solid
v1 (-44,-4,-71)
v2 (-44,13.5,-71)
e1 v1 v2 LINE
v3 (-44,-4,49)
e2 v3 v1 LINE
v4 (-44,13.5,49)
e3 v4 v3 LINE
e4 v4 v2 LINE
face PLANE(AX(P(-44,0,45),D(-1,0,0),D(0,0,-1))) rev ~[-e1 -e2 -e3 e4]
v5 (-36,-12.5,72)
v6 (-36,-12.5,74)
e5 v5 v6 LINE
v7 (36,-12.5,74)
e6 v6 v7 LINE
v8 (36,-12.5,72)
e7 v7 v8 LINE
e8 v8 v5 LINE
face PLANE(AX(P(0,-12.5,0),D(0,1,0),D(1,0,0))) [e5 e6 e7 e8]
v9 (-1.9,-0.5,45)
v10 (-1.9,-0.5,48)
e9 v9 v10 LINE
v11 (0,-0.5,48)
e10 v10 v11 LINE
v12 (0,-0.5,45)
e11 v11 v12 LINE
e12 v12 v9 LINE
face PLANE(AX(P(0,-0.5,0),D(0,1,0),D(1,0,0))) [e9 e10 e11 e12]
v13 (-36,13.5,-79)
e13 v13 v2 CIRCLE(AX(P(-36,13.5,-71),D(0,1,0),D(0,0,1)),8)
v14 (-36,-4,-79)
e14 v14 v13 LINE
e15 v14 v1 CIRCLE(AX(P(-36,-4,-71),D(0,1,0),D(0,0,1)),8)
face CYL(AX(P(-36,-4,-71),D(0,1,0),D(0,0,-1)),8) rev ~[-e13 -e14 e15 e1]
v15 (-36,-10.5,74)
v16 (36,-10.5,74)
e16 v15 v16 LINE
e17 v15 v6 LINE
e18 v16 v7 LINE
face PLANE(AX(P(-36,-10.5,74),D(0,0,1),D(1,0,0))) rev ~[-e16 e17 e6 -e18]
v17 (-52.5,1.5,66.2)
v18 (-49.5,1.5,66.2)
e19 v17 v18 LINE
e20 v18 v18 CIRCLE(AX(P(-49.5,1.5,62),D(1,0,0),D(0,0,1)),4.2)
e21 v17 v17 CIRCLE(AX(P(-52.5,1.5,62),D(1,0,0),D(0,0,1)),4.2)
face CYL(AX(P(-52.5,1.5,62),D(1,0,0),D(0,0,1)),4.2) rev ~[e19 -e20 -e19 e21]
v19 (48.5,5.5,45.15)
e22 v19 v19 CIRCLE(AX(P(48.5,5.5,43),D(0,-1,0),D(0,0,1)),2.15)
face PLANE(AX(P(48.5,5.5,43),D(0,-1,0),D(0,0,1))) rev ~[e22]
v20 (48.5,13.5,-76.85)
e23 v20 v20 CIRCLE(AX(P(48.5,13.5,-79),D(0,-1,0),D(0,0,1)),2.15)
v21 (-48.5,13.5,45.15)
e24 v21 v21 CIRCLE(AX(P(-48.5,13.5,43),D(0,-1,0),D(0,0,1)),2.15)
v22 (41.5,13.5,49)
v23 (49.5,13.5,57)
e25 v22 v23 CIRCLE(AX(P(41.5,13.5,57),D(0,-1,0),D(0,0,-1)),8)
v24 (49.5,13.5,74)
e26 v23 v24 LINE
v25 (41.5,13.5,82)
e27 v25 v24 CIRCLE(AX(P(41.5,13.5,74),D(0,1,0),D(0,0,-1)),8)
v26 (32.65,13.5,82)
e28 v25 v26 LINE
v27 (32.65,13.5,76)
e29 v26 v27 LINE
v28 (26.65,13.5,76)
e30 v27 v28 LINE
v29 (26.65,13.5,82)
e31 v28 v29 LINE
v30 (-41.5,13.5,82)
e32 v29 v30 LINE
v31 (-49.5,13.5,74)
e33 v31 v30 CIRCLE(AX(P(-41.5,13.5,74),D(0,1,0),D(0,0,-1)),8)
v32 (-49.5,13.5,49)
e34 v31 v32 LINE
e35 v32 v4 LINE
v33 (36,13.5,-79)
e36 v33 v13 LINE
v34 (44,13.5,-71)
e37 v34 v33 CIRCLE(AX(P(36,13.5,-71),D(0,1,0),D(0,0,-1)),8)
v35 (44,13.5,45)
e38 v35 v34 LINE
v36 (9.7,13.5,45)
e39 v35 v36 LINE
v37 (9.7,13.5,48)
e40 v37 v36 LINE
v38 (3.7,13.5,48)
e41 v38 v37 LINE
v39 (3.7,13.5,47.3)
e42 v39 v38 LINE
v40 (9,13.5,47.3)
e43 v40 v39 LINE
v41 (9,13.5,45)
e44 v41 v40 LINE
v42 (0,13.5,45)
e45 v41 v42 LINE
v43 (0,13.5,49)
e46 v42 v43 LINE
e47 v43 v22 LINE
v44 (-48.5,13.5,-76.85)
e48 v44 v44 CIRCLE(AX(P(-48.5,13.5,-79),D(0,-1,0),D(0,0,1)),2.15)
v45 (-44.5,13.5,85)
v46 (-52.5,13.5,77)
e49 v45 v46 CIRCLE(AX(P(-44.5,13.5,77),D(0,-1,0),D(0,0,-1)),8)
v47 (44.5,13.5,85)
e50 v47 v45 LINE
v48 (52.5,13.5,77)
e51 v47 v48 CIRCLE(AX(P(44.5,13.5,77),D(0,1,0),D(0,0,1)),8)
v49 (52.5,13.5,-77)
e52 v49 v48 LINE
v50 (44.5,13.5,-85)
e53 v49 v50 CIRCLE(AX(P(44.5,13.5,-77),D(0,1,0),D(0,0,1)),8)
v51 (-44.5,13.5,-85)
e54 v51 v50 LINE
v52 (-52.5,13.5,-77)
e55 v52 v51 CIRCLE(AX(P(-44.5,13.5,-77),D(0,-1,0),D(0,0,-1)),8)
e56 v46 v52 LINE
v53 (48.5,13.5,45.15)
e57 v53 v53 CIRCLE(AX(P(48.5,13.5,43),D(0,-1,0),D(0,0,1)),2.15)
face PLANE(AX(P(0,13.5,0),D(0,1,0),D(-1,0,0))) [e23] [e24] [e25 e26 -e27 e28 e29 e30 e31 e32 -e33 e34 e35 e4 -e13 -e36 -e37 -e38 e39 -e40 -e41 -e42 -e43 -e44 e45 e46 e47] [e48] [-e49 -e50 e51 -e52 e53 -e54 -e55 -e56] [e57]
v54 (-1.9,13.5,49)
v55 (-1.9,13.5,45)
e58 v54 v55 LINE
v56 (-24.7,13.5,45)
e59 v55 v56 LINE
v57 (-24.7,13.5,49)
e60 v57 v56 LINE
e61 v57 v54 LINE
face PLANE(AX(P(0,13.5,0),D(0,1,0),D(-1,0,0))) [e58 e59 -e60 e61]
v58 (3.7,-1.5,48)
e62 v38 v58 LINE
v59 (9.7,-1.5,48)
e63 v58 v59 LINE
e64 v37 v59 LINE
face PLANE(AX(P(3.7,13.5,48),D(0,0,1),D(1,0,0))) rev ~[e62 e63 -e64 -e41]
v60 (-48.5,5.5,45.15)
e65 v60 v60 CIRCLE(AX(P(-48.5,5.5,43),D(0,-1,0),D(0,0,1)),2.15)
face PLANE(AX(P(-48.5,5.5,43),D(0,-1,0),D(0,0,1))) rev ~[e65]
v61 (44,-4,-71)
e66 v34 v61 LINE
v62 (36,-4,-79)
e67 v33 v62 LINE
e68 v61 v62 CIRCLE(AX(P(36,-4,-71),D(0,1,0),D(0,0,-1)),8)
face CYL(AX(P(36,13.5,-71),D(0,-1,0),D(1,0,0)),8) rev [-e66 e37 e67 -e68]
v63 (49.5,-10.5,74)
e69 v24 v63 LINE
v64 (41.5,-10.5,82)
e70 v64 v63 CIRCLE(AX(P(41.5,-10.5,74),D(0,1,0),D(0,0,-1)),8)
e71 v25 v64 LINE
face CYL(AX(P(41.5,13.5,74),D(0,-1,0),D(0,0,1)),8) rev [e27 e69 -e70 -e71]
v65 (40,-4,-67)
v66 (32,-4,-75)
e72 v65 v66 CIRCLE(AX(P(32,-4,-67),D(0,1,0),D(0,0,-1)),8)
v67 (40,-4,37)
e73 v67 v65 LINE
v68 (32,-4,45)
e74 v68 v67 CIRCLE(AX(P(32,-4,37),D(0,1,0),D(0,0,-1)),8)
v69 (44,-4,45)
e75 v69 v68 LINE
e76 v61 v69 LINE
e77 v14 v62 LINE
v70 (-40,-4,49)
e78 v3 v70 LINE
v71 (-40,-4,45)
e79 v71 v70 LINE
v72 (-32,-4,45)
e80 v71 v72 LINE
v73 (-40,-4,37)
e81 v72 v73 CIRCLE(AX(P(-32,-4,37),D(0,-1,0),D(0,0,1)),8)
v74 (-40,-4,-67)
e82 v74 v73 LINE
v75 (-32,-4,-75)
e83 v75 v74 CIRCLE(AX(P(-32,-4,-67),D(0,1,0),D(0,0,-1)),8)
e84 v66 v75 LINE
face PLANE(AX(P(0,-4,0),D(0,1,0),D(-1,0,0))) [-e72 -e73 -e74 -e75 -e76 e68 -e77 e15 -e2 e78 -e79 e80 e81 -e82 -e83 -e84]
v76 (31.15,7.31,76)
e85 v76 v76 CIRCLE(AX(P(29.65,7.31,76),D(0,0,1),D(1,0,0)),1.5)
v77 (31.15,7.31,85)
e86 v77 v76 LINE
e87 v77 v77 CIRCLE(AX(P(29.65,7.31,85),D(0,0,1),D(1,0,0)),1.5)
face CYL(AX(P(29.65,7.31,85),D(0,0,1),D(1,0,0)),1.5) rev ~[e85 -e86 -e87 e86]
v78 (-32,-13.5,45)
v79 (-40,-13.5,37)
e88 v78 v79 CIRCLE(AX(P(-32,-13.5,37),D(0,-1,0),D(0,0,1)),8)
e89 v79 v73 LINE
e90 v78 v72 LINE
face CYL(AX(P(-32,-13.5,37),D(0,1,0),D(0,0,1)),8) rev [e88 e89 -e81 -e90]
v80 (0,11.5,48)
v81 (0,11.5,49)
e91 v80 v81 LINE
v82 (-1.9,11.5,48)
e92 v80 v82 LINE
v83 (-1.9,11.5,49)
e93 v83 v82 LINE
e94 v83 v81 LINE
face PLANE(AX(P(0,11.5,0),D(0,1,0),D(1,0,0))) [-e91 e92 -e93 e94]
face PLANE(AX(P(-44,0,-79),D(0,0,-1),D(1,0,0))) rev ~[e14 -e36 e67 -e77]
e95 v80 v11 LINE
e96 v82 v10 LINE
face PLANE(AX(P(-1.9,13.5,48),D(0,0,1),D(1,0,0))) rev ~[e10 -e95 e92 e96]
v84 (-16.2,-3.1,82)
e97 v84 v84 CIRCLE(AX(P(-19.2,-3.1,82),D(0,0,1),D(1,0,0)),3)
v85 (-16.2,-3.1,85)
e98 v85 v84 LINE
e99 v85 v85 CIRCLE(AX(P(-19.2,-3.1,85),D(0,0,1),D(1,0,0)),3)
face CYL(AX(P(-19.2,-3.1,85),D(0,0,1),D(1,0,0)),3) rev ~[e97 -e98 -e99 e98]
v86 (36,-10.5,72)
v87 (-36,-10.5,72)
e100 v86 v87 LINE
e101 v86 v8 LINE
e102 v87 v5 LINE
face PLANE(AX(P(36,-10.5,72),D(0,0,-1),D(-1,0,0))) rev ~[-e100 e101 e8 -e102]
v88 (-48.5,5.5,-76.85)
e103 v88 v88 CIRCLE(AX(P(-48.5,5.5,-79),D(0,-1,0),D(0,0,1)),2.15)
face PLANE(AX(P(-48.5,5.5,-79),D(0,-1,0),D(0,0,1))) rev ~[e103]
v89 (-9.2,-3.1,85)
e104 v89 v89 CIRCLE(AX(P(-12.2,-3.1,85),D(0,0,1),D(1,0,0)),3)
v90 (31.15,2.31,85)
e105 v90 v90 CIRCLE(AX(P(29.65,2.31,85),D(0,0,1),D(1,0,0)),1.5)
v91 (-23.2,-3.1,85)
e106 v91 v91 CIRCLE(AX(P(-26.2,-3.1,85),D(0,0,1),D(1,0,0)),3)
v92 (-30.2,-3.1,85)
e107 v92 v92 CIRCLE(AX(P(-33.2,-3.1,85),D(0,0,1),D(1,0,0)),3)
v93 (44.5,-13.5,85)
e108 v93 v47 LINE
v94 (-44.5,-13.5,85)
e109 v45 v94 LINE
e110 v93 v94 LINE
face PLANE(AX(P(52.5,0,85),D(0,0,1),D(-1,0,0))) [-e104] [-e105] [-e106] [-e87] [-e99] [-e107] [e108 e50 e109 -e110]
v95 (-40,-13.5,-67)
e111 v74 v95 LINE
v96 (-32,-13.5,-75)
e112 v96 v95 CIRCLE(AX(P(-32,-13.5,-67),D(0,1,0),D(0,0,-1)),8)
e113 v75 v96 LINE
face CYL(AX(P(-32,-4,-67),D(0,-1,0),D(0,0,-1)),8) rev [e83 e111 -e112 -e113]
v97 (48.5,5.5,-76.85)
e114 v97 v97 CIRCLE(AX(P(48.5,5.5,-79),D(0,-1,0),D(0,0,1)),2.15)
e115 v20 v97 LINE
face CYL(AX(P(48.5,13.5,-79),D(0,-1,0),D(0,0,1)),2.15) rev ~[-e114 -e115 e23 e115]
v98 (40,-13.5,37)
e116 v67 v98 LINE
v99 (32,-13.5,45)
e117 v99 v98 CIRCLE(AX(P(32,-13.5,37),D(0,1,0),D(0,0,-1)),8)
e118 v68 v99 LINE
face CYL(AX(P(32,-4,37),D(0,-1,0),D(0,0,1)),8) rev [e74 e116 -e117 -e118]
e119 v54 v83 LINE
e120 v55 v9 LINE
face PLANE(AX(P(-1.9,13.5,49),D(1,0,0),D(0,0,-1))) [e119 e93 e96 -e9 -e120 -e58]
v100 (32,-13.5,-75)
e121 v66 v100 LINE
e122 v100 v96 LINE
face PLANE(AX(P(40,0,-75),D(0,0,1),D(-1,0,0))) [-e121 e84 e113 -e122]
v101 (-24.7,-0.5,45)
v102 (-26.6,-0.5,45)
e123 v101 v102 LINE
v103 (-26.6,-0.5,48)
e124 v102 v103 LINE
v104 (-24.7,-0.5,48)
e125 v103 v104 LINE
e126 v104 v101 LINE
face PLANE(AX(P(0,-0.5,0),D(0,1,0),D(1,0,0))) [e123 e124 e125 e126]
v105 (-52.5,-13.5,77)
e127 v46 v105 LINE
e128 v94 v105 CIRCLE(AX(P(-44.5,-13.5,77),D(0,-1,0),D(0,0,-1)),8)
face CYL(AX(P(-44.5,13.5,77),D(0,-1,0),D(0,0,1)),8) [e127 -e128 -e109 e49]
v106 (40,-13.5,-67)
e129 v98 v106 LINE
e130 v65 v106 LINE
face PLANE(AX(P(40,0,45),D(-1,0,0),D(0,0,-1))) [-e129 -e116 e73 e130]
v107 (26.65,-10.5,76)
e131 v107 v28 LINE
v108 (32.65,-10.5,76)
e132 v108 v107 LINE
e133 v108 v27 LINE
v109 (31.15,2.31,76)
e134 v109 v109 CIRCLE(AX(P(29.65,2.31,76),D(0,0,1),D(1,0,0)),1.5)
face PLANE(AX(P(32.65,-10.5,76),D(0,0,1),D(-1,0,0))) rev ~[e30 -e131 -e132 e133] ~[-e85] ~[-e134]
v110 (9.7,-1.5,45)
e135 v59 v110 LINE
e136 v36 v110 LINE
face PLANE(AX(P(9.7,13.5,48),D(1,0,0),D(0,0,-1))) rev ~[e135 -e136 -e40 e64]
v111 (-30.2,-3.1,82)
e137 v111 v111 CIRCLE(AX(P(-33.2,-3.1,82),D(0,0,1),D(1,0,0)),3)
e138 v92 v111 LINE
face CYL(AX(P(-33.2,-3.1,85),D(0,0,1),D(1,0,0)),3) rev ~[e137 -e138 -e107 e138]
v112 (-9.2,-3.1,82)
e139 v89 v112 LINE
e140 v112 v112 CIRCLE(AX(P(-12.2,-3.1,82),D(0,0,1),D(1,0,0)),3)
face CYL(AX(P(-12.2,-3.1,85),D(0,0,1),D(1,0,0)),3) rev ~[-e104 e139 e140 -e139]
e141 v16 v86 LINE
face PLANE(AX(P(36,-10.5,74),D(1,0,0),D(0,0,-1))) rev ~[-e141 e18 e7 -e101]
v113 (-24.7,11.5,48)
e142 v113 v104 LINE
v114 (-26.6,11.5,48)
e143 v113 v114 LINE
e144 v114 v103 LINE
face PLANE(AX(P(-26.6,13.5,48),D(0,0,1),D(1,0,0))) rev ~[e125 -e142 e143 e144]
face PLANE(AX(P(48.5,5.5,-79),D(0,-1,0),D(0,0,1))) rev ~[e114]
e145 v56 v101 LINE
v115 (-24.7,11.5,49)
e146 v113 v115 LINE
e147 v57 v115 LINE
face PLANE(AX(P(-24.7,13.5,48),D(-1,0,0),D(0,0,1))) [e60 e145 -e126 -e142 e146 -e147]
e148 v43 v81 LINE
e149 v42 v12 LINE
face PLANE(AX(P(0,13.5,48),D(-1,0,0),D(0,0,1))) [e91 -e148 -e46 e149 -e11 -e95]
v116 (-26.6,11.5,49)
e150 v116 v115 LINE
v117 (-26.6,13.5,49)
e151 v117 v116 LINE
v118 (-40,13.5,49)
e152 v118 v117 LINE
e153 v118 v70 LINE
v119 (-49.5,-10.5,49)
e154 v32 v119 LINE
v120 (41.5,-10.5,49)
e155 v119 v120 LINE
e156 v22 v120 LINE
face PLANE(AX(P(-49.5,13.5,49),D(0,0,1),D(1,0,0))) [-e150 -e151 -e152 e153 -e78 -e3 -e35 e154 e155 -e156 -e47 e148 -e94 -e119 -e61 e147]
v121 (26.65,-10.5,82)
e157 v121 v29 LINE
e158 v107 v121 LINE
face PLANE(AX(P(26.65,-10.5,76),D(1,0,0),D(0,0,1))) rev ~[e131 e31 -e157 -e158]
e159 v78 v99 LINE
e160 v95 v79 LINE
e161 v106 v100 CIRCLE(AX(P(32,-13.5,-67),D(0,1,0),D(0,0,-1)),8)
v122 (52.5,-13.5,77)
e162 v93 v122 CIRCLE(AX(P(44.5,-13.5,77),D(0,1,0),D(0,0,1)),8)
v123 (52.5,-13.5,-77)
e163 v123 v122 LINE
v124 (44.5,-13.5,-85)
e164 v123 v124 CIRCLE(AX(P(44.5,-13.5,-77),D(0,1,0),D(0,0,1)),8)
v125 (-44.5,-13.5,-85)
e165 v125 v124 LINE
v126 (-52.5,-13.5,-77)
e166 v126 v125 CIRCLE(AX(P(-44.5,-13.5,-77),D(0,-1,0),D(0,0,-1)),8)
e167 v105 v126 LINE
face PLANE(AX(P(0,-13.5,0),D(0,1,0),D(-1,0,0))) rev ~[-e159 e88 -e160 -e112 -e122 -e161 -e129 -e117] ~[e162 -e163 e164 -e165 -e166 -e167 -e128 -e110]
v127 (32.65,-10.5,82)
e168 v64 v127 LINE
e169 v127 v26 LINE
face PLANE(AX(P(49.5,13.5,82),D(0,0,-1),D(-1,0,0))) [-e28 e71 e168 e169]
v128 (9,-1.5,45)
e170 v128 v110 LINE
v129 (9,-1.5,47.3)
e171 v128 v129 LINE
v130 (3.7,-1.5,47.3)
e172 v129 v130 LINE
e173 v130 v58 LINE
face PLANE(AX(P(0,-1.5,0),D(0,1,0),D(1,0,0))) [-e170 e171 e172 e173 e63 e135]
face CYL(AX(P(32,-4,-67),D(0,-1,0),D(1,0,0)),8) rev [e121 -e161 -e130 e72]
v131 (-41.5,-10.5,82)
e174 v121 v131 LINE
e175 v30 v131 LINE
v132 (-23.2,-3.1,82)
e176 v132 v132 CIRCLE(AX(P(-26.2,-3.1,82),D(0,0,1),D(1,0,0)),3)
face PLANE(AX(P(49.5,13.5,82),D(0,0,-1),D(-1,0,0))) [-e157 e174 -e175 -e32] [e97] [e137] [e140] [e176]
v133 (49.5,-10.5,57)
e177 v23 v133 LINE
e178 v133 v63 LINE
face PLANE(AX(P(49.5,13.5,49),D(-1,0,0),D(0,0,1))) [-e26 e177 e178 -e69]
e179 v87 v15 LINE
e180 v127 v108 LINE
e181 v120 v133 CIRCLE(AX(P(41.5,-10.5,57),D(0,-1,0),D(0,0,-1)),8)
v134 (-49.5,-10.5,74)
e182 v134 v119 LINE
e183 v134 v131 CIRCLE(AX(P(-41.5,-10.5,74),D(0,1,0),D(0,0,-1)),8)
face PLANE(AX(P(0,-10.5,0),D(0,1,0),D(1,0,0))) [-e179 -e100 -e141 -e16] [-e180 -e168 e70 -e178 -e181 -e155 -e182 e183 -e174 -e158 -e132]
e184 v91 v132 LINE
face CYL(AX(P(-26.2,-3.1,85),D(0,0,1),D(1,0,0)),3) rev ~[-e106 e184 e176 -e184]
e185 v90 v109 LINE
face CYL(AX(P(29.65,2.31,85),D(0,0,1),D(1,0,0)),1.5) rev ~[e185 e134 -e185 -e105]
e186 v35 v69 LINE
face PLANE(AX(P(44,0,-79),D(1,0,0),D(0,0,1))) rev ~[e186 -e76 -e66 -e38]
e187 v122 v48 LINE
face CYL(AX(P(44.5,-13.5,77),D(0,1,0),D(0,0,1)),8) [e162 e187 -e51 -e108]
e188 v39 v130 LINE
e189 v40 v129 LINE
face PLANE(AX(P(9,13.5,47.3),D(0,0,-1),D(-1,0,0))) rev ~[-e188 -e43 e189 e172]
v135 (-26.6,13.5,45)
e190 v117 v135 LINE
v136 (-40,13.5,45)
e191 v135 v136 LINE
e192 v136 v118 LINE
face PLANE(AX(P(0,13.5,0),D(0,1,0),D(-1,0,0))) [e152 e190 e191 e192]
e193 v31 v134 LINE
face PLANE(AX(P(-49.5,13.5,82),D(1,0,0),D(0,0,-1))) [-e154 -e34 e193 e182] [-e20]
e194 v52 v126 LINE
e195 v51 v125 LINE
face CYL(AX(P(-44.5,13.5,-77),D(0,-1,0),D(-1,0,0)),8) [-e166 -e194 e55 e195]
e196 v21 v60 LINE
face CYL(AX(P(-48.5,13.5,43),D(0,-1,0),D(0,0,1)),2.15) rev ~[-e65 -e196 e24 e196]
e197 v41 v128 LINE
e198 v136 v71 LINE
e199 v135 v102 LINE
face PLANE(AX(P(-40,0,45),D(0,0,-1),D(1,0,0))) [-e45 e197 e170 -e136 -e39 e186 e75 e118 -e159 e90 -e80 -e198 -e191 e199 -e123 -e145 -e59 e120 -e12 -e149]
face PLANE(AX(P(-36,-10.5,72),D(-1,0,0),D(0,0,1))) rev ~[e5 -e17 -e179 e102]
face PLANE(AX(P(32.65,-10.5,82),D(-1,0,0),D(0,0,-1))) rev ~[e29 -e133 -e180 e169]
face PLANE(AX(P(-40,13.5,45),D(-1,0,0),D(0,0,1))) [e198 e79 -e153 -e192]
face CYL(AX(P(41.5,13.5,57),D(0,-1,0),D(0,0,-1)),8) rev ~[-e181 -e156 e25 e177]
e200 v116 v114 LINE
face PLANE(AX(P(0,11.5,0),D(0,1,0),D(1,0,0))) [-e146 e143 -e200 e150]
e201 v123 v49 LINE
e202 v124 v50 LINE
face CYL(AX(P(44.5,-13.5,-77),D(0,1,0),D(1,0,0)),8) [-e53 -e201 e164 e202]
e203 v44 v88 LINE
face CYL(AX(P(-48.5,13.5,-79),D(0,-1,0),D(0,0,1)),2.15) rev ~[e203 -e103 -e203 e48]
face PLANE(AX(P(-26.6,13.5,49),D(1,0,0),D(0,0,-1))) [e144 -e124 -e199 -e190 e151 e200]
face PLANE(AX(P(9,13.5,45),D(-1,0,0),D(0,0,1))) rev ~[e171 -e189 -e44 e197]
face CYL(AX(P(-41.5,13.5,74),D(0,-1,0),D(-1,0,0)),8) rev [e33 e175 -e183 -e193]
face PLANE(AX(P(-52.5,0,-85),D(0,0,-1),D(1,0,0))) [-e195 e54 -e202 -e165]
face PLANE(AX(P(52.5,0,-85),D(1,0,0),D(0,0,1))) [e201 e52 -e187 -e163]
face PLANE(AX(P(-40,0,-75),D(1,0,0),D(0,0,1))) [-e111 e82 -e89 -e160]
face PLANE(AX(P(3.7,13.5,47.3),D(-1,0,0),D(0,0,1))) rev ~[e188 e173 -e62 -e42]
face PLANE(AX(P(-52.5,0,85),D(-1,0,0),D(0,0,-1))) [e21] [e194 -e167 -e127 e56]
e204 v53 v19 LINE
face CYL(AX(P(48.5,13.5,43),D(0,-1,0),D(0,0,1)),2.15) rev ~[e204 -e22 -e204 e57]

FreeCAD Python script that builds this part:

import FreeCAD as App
import Part
import Sketcher


def edges_at(feature, points):
    """Names of the edges that pass closest to the given points."""
    edges = feature.Shape.Edges
    near = lambda p: min(range(len(edges)), key=lambda i: edges[i].distToShape(Part.Vertex(*p))[0])
    return sorted({f"Edge{near(p) + 1}" for p in points})

doc = App.newDocument("Part")
params = doc.addObject("Spreadsheet::Sheet", "Params")
for row, (alias, value) in enumerate([
    ("sketch1_width", "105 mm"),
    ("sketch1_width2", "80 mm"),
    ("sketch1_height", "170 mm"),
    ("sketch1_height2", "120 mm"),
    ("pad1_length", "27 mm"),
    ("sketch2_width", "88 mm"),
    ("sketch2_height", "124 mm"),
    ("pocket1_length", "15 mm"),
    ("pocket1_length2", "4 mm"),
    ("sketch3_width", "99 mm"),
    ("sketch3_height", "33 mm"),
    ("pocket2_length", "24 mm"),
    ("sketch4_width", "4 mm"),
    ("pocket3_length", "17.5 mm"),
    ("sketch5_height", "3 mm"),
    ("sketch5_width", "1.9 mm"),
    ("pocket4_length", "14 mm"),
    ("sketch6_width", "6 mm"),
    ("sketch6_height", "3 mm"),
    ("sketch6_width2", "0.7 mm"),
    ("pocket5_length", "15 mm"),
    ("fillet_radius", "8 mm"),
    ("sketch7_width", "72 mm"),
    ("sketch7_height", "2 mm"),
    ("pocket6_length", "2 mm"),
    ("sketch8_diameter", "8.4 mm"),
    ("hole_diameter", "8.4 mm"),
    ("hole_depth", "8 mm"),
    ("fillet2_radius", "8 mm"),
    ("sketch9_diameter", "4.3 mm"),
    ("hole2_diameter", "4.3 mm"),
    ("hole2_depth", "8 mm"),
    ("sketch10_diameter", "6 mm"),
    ("pocket7_length", "10 mm"),
    ("sketch11_width", "6 mm"),
    ("pad2_length", "24 mm"),
    ("sketch12_diameter", "3 mm"),
    ("pocket8_length", "10 mm"),
    ("sketch13_height", "1 mm"),
    ("sketch13_width", "1.9 mm"),
    ("pocket9_length", "2 mm"),
], start=1):
    params.set(f"A{row}", alias)
    params.set(f"B{row}", "=" + value)
    params.setAlias(f"B{row}", alias)

body = doc.addObject("PartDesign::Body", "Body")

# Sketch on XZ plane
sketch1 = doc.addObject("Sketcher::SketchObject", "Sketch")
body.addObject(sketch1)
sketch1.AttachmentSupport = (doc.XZ_Plane, [""])
sketch1.MapMode = "FlatFace"
sketch1.addGeometry(Part.LineSegment(App.Vector(-52, 85, 0), App.Vector(52, 85, 0)), False)
sketch1.addGeometry(Part.LineSegment(App.Vector(52, 85, 0), App.Vector(52, -85, 0)), False)
sketch1.addGeometry(Part.LineSegment(App.Vector(52, -85, 0), App.Vector(-52, -85, 0)), False)
sketch1.addGeometry(Part.LineSegment(App.Vector(-52, -85, 0), App.Vector(-52, 85, 0)), False)
sketch1.addGeometry(Part.LineSegment(App.Vector(40, 45, 0), App.Vector(-40, 45, 0)), False)
sketch1.addGeometry(Part.LineSegment(App.Vector(-40, 45, 0), App.Vector(-40, -75, 0)), False)
sketch1.addGeometry(Part.LineSegment(App.Vector(-40, -75, 0), App.Vector(40, -75, 0)), False)
sketch1.addGeometry(Part.LineSegment(App.Vector(40, -75, 0), App.Vector(40, 45, 0)), False)
sketch1.addConstraint(Sketcher.Constraint("Coincident", 0, 2, 1, 1))
sketch1.addConstraint(Sketcher.Constraint("Coincident", 1, 2, 2, 1))
sketch1.addConstraint(Sketcher.Constraint("Coincident", 2, 2, 3, 1))
sketch1.addConstraint(Sketcher.Constraint("Coincident", 3, 2, 0, 1))
sketch1.addConstraint(Sketcher.Constraint("Coincident", 4, 2, 5, 1))
sketch1.addConstraint(Sketcher.Constraint("Coincident", 5, 2, 6, 1))
sketch1.addConstraint(Sketcher.Constraint("Coincident", 6, 2, 7, 1))
sketch1.addConstraint(Sketcher.Constraint("Coincident", 7, 2, 4, 1))
sketch1.addConstraint(Sketcher.Constraint("Horizontal", 0))
sketch1.addConstraint(Sketcher.Constraint("Vertical", 1))
sketch1.addConstraint(Sketcher.Constraint("Horizontal", 2))
sketch1.addConstraint(Sketcher.Constraint("Vertical", 3))
sketch1.addConstraint(Sketcher.Constraint("Horizontal", 4))
sketch1.addConstraint(Sketcher.Constraint("Vertical", 5))
sketch1.addConstraint(Sketcher.Constraint("Horizontal", 6))
sketch1.addConstraint(Sketcher.Constraint("Vertical", 7))
sketch1.addConstraint(Sketcher.Constraint("Symmetric", 0, 2, 2, 2, -1, 1))
sketch1.addConstraint(Sketcher.Constraint("DistanceX", 0, 1, 0, 2, 105.0))
sketch1.addConstraint(Sketcher.Constraint("DistanceX", 4, 2, 4, 1, 80.0))
sketch1.addConstraint(Sketcher.Constraint("DistanceY", 1, 2, 1, 1, 170.0))
sketch1.addConstraint(Sketcher.Constraint("DistanceY", 5, 2, 5, 1, 120.0))
sketch1.addConstraint(Sketcher.Constraint("DistanceY", 2, 2, 5, 2, 10.0))
sketch1.addConstraint(Sketcher.Constraint("DistanceX", 4, 2, -1, 1, 40.0))
sketch1.setExpression("Constraints[17]", "Params.sketch1_width")
sketch1.setExpression("Constraints[18]", "Params.sketch1_width2")
sketch1.setExpression("Constraints[19]", "Params.sketch1_height")
sketch1.setExpression("Constraints[20]", "Params.sketch1_height2")
pad1 = doc.addObject("PartDesign::Pad", "Pad")
body.addObject(pad1)
pad1.Profile = sketch1
pad1.setExpression("Length", "Params.pad1_length")
pad1.Midplane = True

# Sketch on XZ plane
sketch2 = doc.addObject("Sketcher::SketchObject", "Sketch001")
body.addObject(sketch2)
sketch2.AttachmentSupport = (doc.XZ_Plane, [""])
sketch2.MapMode = "FlatFace"
sketch2.addGeometry(Part.LineSegment(App.Vector(44, -79, 0), App.Vector(-44, -79, 0)), False)
sketch2.addGeometry(Part.LineSegment(App.Vector(-44, -79, 0), App.Vector(-44, 45, 0)), False)
sketch2.addGeometry(Part.LineSegment(App.Vector(-44, 45, 0), App.Vector(44, 45, 0)), False)
sketch2.addGeometry(Part.LineSegment(App.Vector(44, 45, 0), App.Vector(44, -79, 0)), False)
sketch2.addConstraint(Sketcher.Constraint("Coincident", 0, 2, 1, 1))
sketch2.addConstraint(Sketcher.Constraint("Coincident", 1, 2, 2, 1))
sketch2.addConstraint(Sketcher.Constraint("Coincident", 2, 2, 3, 1))
sketch2.addConstraint(Sketcher.Constraint("Coincident", 3, 2, 0, 1))
sketch2.addConstraint(Sketcher.Constraint("Horizontal", 0))
sketch2.addConstraint(Sketcher.Constraint("Vertical", 1))
sketch2.addConstraint(Sketcher.Constraint("Horizontal", 2))
sketch2.addConstraint(Sketcher.Constraint("Vertical", 3))
sketch2.addConstraint(Sketcher.Constraint("DistanceX", 0, 2, 0, 1, 88.0))
sketch2.addConstraint(Sketcher.Constraint("DistanceY", 1, 1, 1, 2, 124.0))
sketch2.addConstraint(Sketcher.Constraint("DistanceX", 0, 2, -1, 1, 44.0))
sketch2.addConstraint(Sketcher.Constraint("DistanceY", 0, 2, -1, 1, 79.0))
sketch2.setExpression("Constraints[8]", "Params.sketch2_width")
sketch2.setExpression("Constraints[9]", "Params.sketch2_height")
pocket1 = doc.addObject("PartDesign::Pocket", "Pocket")
body.addObject(pocket1)
pocket1.Profile = sketch2
pocket1.Type = "TwoLengths"
pocket1.setExpression("Length", "Params.pocket1_length")
pocket1.setExpression("Length2", "Params.pocket1_length2")

# Sketch on XZ plane
sketch3 = doc.addObject("Sketcher::SketchObject", "Sketch002")
body.addObject(sketch3)
sketch3.AttachmentSupport = (doc.XZ_Plane, [""])
sketch3.MapMode = "FlatFace"
sketch3.AttachmentOffset = App.Placement(App.Vector(0, 0, -13.5), App.Rotation())
sketch3.addGeometry(Part.LineSegment(App.Vector(50, 49, 0), App.Vector(-50, 49, 0)), False)
sketch3.addGeometry(Part.LineSegment(App.Vector(-50, 49, 0), App.Vector(-50, 82, 0)), False)
sketch3.addGeometry(Part.LineSegment(App.Vector(-50, 82, 0), App.Vector(50, 82, 0)), False)
sketch3.addGeometry(Part.LineSegment(App.Vector(50, 82, 0), App.Vector(50, 49, 0)), False)
sketch3.addConstraint(Sketcher.Constraint("Coincident", 0, 2, 1, 1))
sketch3.addConstraint(Sketcher.Constraint("Coincident", 1, 2, 2, 1))
sketch3.addConstraint(Sketcher.Constraint("Coincident", 2, 2, 3, 1))
sketch3.addConstraint(Sketcher.Constraint("Coincident", 3, 2, 0, 1))
sketch3.addConstraint(Sketcher.Constraint("Horizontal", 0))
sketch3.addConstraint(Sketcher.Constraint("Vertical", 1))
sketch3.addConstraint(Sketcher.Constraint("Horizontal", 2))
sketch3.addConstraint(Sketcher.Constraint("Vertical", 3))
sketch3.addConstraint(Sketcher.Constraint("DistanceX", 0, 2, 0, 1, 99.0))
sketch3.addConstraint(Sketcher.Constraint("DistanceY", 1, 1, 1, 2, 33.0))
sketch3.addConstraint(Sketcher.Constraint("DistanceY", -1, 1, 0, 2, 49.0))
sketch3.addConstraint(Sketcher.Constraint("DistanceX", 0, 2, -1, 1, 49.5))
sketch3.setExpression("Constraints[8]", "Params.sketch3_width")
sketch3.setExpression("Constraints[9]", "Params.sketch3_height")
pocket2 = doc.addObject("PartDesign::Pocket", "Pocket001")
body.addObject(pocket2)
pocket2.Profile = sketch3
pocket2.setExpression("Length", "Params.pocket2_length")
pocket2.Reversed = True

# Sketch on XZ plane
sketch4 = doc.addObject("Sketcher::SketchObject", "Sketch003")
body.addObject(sketch4)
sketch4.AttachmentSupport = (doc.XZ_Plane, [""])
sketch4.MapMode = "FlatFace"
sketch4.AttachmentOffset = App.Placement(App.Vector(0, 0, -13.5), App.Rotation())
sketch4.addGeometry(Part.LineSegment(App.Vector(-40, 49, 0), App.Vector(-40, 45, 0)), False)
sketch4.addGeometry(Part.LineSegment(App.Vector(-40, 45, 0), App.Vector(-44, 45, 0)), False)
sketch4.addGeometry(Part.LineSegment(App.Vector(-44, 45, 0), App.Vector(-44, 49, 0)), False)
sketch4.addGeometry(Part.LineSegment(App.Vector(-44, 49, 0), App.Vector(-40, 49, 0)), False)
sketch4.addConstraint(Sketcher.Constraint("Coincident", 0, 2, 1, 1))
sketch4.addConstraint(Sketcher.Constraint("Coincident", 1, 2, 2, 1))
sketch4.addConstraint(Sketcher.Constraint("Coincident", 2, 2, 3, 1))
sketch4.addConstraint(Sketcher.Constraint("Coincident", 3, 2, 0, 1))
sketch4.addConstraint(Sketcher.Constraint("Vertical", 0))
sketch4.addConstraint(Sketcher.Constraint("Horizontal", 1))
sketch4.addConstraint(Sketcher.Constraint("Vertical", 2))
sketch4.addConstraint(Sketcher.Constraint("Horizontal", 3))
sketch4.addConstraint(Sketcher.Constraint("Equal", 3, 0))
sketch4.addConstraint(Sketcher.Constraint("DistanceX", 1, 2, 1, 1, 4.0))
sketch4.addConstraint(Sketcher.Constraint("DistanceX", 0, 2, -1, 1, 40.0))
sketch4.addConstraint(Sketcher.Constraint("DistanceY", -1, 1, 0, 2, 45.0))
sketch4.setExpression("Constraints[9]", "Params.sketch4_width")
pocket3 = doc.addObject("PartDesign::Pocket", "Pocket002")
body.addObject(pocket3)
pocket3.Profile = sketch4
pocket3.setExpression("Length", "Params.pocket3_length")
pocket3.Reversed = True

# Sketch on XZ plane
sketch5 = doc.addObject("Sketcher::SketchObject", "Sketch004")
body.addObject(sketch5)
sketch5.AttachmentSupport = (doc.XZ_Plane, [""])
sketch5.MapMode = "FlatFace"
sketch5.AttachmentOffset = App.Placement(App.Vector(0, 0, -13.5), App.Rotation())
sketch5.addGeometry(Part.LineSegment(App.Vector(0, 48, 0), App.Vector(0, 45, 0)), False)
sketch5.addGeometry(Part.LineSegment(App.Vector(0, 45, 0), App.Vector(-1.9, 45, 0)), False)
sketch5.addGeometry(Part.LineSegment(App.Vector(-1.9, 45, 0), App.Vector(-1.9, 48, 0)), False)
sketch5.addGeometry(Part.LineSegment(App.Vector(-1.9, 48, 0), App.Vector(0, 48, 0)), False)
sketch5.addGeometry(Part.LineSegment(App.Vector(-24.7, 48, 0), App.Vector(-24.7, 45, 0)), False)
sketch5.addGeometry(Part.LineSegment(App.Vector(-24.7, 45, 0), App.Vector(-26.6, 45, 0)), False)
sketch5.addGeometry(Part.LineSegment(App.Vector(-26.6, 45, 0), App.Vector(-26.6, 48, 0)), False)
sketch5.addGeometry(Part.LineSegment(App.Vector(-26.6, 48, 0), App.Vector(-24.7, 48, 0)), False)
sketch5.addConstraint(Sketcher.Constraint("Coincident", 0, 2, 1, 1))
sketch5.addConstraint(Sketcher.Constraint("Coincident", 1, 2, 2, 1))
sketch5.addConstraint(Sketcher.Constraint("Coincident", 2, 2, 3, 1))
sketch5.addConstraint(Sketcher.Constraint("Coincident", 3, 2, 0, 1))
sketch5.addConstraint(Sketcher.Constraint("Coincident", 4, 2, 5, 1))
sketch5.addConstraint(Sketcher.Constraint("Coincident", 5, 2, 6, 1))
sketch5.addConstraint(Sketcher.Constraint("Coincident", 6, 2, 7, 1))
sketch5.addConstraint(Sketcher.Constraint("Coincident", 7, 2, 4, 1))
sketch5.addConstraint(Sketcher.Constraint("Vertical", 0))
sketch5.addConstraint(Sketcher.Constraint("Horizontal", 1))
sketch5.addConstraint(Sketcher.Constraint("Vertical", 2))
sketch5.addConstraint(Sketcher.Constraint("Horizontal", 3))
sketch5.addConstraint(Sketcher.Constraint("Vertical", 4))
sketch5.addConstraint(Sketcher.Constraint("Horizontal", 5))
sketch5.addConstraint(Sketcher.Constraint("Vertical", 6))
sketch5.addConstraint(Sketcher.Constraint("Horizontal", 7))
sketch5.addConstraint(Sketcher.Constraint("PointOnObject", 0, 2, -2))
sketch5.addConstraint(Sketcher.Constraint("Horizontal", 1, 2, 4, 2))
sketch5.addConstraint(Sketcher.Constraint("Horizontal", 3, 2, 6, 2))
sketch5.addConstraint(Sketcher.Constraint("Equal", 3, 5))
sketch5.addConstraint(Sketcher.Constraint("DistanceY", 0, 2, 0, 1, 3.0))
sketch5.addConstraint(Sketcher.Constraint("DistanceX", 1, 2, 1, 1, 1.9))
sketch5.addConstraint(Sketcher.Constraint("DistanceX", 4, 2, 1, 2, 22.8))
sketch5.addConstraint(Sketcher.Constraint("DistanceY", -1, 1, 0, 2, 45.0))
sketch5.setExpression("Constraints[20]", "Params.sketch5_height")
sketch5.setExpression("Constraints[21]", "Params.sketch5_width")
pocket4 = doc.addObject("PartDesign::Pocket", "Pocket003")
body.addObject(pocket4)
pocket4.Profile = sketch5
pocket4.setExpression("Length", "Params.pocket4_length")
pocket4.Reversed = True

# Sketch on XZ plane
sketch6 = doc.addObject("Sketcher::SketchObject", "Sketch005")
body.addObject(sketch6)
sketch6.AttachmentSupport = (doc.XZ_Plane, [""])
sketch6.MapMode = "FlatFace"
sketch6.AttachmentOffset = App.Placement(App.Vector(0, 0, -13.5), App.Rotation())
sketch6.addGeometry(Part.LineSegment(App.Vector(9.7, 45, 0), App.Vector(9, 45, 0)), False)
sketch6.addGeometry(Part.LineSegment(App.Vector(9, 45, 0), App.Vector(9, 47.3, 0)), False)
sketch6.addGeometry(Part.LineSegment(App.Vector(9, 47.3, 0), App.Vector(3.7, 47.3, 0)), False)
sketch6.addGeometry(Part.LineSegment(App.Vector(3.7, 47.3, 0), App.Vector(3.7, 48, 0)), False)
sketch6.addGeometry(Part.LineSegment(App.Vector(3.7, 48, 0), App.Vector(9.7, 48, 0)), False)
sketch6.addGeometry(Part.LineSegment(App.Vector(9.7, 48, 0), App.Vector(9.7, 45, 0)), False)
sketch6.addConstraint(Sketcher.Constraint("Coincident", 0, 2, 1, 1))
sketch6.addConstraint(Sketcher.Constraint("Coincident", 1, 2, 2, 1))
sketch6.addConstraint(Sketcher.Constraint("Coincident", 2, 2, 3, 1))
sketch6.addConstraint(Sketcher.Constraint("Coincident", 3, 2, 4, 1))
sketch6.addConstraint(Sketcher.Constraint("Coincident", 4, 2, 5, 1))
sketch6.addConstraint(Sketcher.Constraint("Coincident", 5, 2, 0, 1))
sketch6.addConstraint(Sketcher.Constraint("Horizontal", 0))
sketch6.addConstraint(Sketcher.Constraint("Vertical", 1))
sketch6.addConstraint(Sketcher.Constraint("Horizontal", 2))
sketch6.addConstraint(Sketcher.Constraint("Vertical", 3))
sketch6.addConstraint(Sketcher.Constraint("Horizontal", 4))
sketch6.addConstraint(Sketcher.Constraint("Vertical", 5))
sketch6.addConstraint(Sketcher.Constraint("Equal", 0, 3))
sketch6.addConstraint(Sketcher.Constraint("DistanceX", 4, 1, 4, 2, 6.0))
sketch6.addConstraint(Sketcher.Constraint("DistanceY", 5, 2, 5, 1, 3.0))
sketch6.addConstraint(Sketcher.Constraint("DistanceX", 0, 2, 0, 1, 0.7))
sketch6.addConstraint(Sketcher.Constraint("DistanceX", -1, 1, 0, 2, 9.0))
sketch6.addConstraint(Sketcher.Constraint("DistanceY", -1, 1, 0, 2, 45.0))
sketch6.setExpression("Constraints[13]", "Params.sketch6_width")
sketch6.setExpression("Constraints[14]", "Params.sketch6_height")
sketch6.setExpression("Constraints[15]", "Params.sketch6_width2")
pocket5 = doc.addObject("PartDesign::Pocket", "Pocket004")
body.addObject(pocket5)
pocket5.Profile = sketch6
pocket5.setExpression("Length", "Params.pocket5_length")
pocket5.Reversed = True
doc.recompute()

fillet = doc.addObject("PartDesign::Fillet", "Fillet")
body.addObject(fillet)
fillet.Base = (pocket5, edges_at(pocket5, [
    (-44, 4.75, -79),
    (44, 4.75, -79),
    (40, -8.75, -75),
    (-40, -8.75, -75),
    (52.5, 0, -85),
    (-52.5, 0, -85),
    (-52.5, 0, 85),
    (-49.5, 1.5, 82),
    (49.5, 1.5, 82),
    (52.5, 0, 85),
    (40, -8.75, 45),
    (-40, -8.75, 45),
]))
fillet.setExpression("Radius", "Params.fillet_radius")

# Sketch on XZ plane
sketch7 = doc.addObject("Sketcher::SketchObject", "Sketch006")
body.addObject(sketch7)
sketch7.AttachmentSupport = (doc.XZ_Plane, [""])
sketch7.MapMode = "FlatFace"
sketch7.AttachmentOffset = App.Placement(App.Vector(0, 0, 10.5), App.Rotation())
sketch7.addGeometry(Part.LineSegment(App.Vector(-36, 72, 0), App.Vector(-36, 74, 0)), False)
sketch7.addGeometry(Part.LineSegment(App.Vector(-36, 74, 0), App.Vector(36, 74, 0)), False)
sketch7.addGeometry(Part.LineSegment(App.Vector(36, 74, 0), App.Vector(36, 72, 0)), False)
sketch7.addGeometry(Part.LineSegment(App.Vector(36, 72, 0), App.Vector(-36, 72, 0)), False)
sketch7.addConstraint(Sketcher.Constraint("Coincident", 0, 2, 1, 1))
sketch7.addConstraint(Sketcher.Constraint("Coincident", 1, 2, 2, 1))
sketch7.addConstraint(Sketcher.Constraint("Coincident", 2, 2, 3, 1))
sketch7.addConstraint(Sketcher.Constraint("Coincident", 3, 2, 0, 1))
sketch7.addConstraint(Sketcher.Constraint("Vertical", 0))
sketch7.addConstraint(Sketcher.Constraint("Horizontal", 1))
sketch7.addConstraint(Sketcher.Constraint("Vertical", 2))
sketch7.addConstraint(Sketcher.Constraint("Horizontal", 3))
sketch7.addConstraint(Sketcher.Constraint("DistanceX", 1, 1, 1, 2, 72.0))
sketch7.addConstraint(Sketcher.Constraint("DistanceY", 0, 1, 0, 2, 2.0))
sketch7.addConstraint(Sketcher.Constraint("DistanceY", -1, 1, 2, 2, 72.0))
sketch7.addConstraint(Sketcher.Constraint("DistanceX", 0, 2, -1, 1, 36.0))
sketch7.setExpression("Constraints[8]", "Params.sketch7_width")
sketch7.setExpression("Constraints[9]", "Params.sketch7_height")
pocket6 = doc.addObject("PartDesign::Pocket", "Pocket005")
body.addObject(pocket6)
pocket6.Profile = sketch7
pocket6.setExpression("Length", "Params.pocket6_length")
pocket6.Reversed = True

# Sketch on YZ plane
sketch8 = doc.addObject("Sketcher::SketchObject", "Sketch007")
body.addObject(sketch8)
sketch8.AttachmentSupport = (doc.YZ_Plane, [""])
sketch8.MapMode = "FlatFace"
sketch8.AttachmentOffset = App.Placement(App.Vector(0, 0, -52.5), App.Rotation())
sketch8.addGeometry(Part.Circle(App.Vector(1.5, 62, 0), App.Vector(0, 0, 1), 4.2), False)
sketch8.addConstraint(Sketcher.Constraint("Diameter", 0, 8.4))
sketch8.addConstraint(Sketcher.Constraint("DistanceY", -1, 1, 0, 3, 62.0))
sketch8.addConstraint(Sketcher.Constraint("DistanceX", -1, 1, 0, 3, 1.5))
sketch8.setExpression("Constraints[0]", "Params.sketch8_diameter")
doc.recompute()
hole = doc.addObject("PartDesign::Hole", "Hole")
body.addObject(hole)
hole.Profile = sketch8
hole.ThreadType = "None"
hole.setExpression("Diameter", "Params.hole_diameter")
hole.DepthType = "Dimension"
hole.setExpression("Depth", "Params.hole_depth")
hole.DrillPoint = "Angled"
hole.DrillPointAngle = 118
hole.Reversed = True
doc.recompute()

fillet2 = doc.addObject("PartDesign::Fillet", "Fillet001")
body.addObject(fillet2)
fillet2.Base = (hole, edges_at(hole, [(49.5, 1.5, 49)]))
fillet2.setExpression("Radius", "Params.fillet2_radius")

# Sketch on XZ plane
sketch9 = doc.addObject("Sketcher::SketchObject", "Sketch008")
body.addObject(sketch9)
sketch9.AttachmentSupport = (doc.XZ_Plane, [""])
sketch9.MapMode = "FlatFace"
sketch9.AttachmentOffset = App.Placement(App.Vector(0, 0, -13.5), App.Rotation())
sketch9.addGeometry(Part.Circle(App.Vector(-48.5, -79, 0), App.Vector(0, 0, 1), 2.1), False)
sketch9.addGeometry(Part.Circle(App.Vector(48.5, -79, 0), App.Vector(0, 0, 1), 2.1), False)
sketch9.addGeometry(Part.Circle(App.Vector(48.5, 43, 0), App.Vector(0, 0, 1), 2.1), False)
sketch9.addGeometry(Part.Circle(App.Vector(-48.5, 43, 0), App.Vector(0, 0, 1), 2.1), False)
sketch9.addConstraint(Sketcher.Constraint("Equal", 0, 1))
sketch9.addConstraint(Sketcher.Constraint("Equal", 1, 2))
sketch9.addConstraint(Sketcher.Constraint("Equal", 2, 3))
sketch9.addConstraint(Sketcher.Constraint("Symmetric", 0, 3, 1, 3, -2))
sketch9.addConstraint(Sketcher.Constraint("Symmetric", 2, 3, 3, 3, -2))
sketch9.addConstraint(Sketcher.Constraint("Vertical", 1, 3, 2, 3))
sketch9.addConstraint(Sketcher.Constraint("Diameter", 0, 4.3))
sketch9.addConstraint(Sketcher.Constraint("DistanceY", 0, 3, -1, 1, 79.0))
sketch9.addConstraint(Sketcher.Constraint("DistanceY", -1, 1, 2, 3, 43.0))
sketch9.addConstraint(Sketcher.Constraint("DistanceX", 0, 3, 1, 3, 97.0))
sketch9.setExpression("Constraints[6]", "Params.sketch9_diameter")
doc.recompute()
hole2 = doc.addObject("PartDesign::Hole", "Hole001")
body.addObject(hole2)
hole2.Profile = sketch9
hole2.ThreadType = "None"
hole2.setExpression("Diameter", "Params.hole2_diameter")
hole2.DepthType = "Dimension"
hole2.setExpression("Depth", "Params.hole2_depth")
hole2.DrillPoint = "Flat"
hole2.Reversed = True

# Sketch on XY plane
sketch10 = doc.addObject("Sketcher::SketchObject", "Sketch009")
body.addObject(sketch10)
sketch10.AttachmentSupport = (doc.XY_Plane, [""])
sketch10.MapMode = "FlatFace"
sketch10.AttachmentOffset = App.Placement(App.Vector(0, 0, 85), App.Rotation())
sketch10.addGeometry(Part.Circle(App.Vector(-19.2, -3.1, 0), App.Vector(0, 0, 1), 3), False)
sketch10.addGeometry(Part.Circle(App.Vector(-12.2, -3.1, 0), App.Vector(0, 0, 1), 3), False)
sketch10.addGeometry(Part.Circle(App.Vector(-26.2, -3.1, 0), App.Vector(0, 0, 1), 3), False)
sketch10.addGeometry(Part.Circle(App.Vector(-33.2, -3.1, 0), App.Vector(0, 0, 1), 3), False)
sketch10.addConstraint(Sketcher.Constraint("Equal", 0, 1))
sketch10.addConstraint(Sketcher.Constraint("Equal", 1, 2))
sketch10.addConstraint(Sketcher.Constraint("Equal", 2, 3))
sketch10.addConstraint(Sketcher.Constraint("Horizontal", 0, 3, 1, 3))
sketch10.addConstraint(Sketcher.Constraint("Horizontal", 1, 3, 2, 3))
sketch10.addConstraint(Sketcher.Constraint("Horizontal", 2, 3, 3, 3))
sketch10.addConstraint(Sketcher.Constraint("Diameter", 0, 6.0))
sketch10.addConstraint(Sketcher.Constraint("DistanceX", 0, 3, 1, 3, 7.0))
sketch10.addConstraint(Sketcher.Constraint("DistanceX", 2, 3, 0, 3, 7.0))
sketch10.addConstraint(Sketcher.Constraint("DistanceX", 3, 3, 2, 3, 7.0))
sketch10.addConstraint(Sketcher.Constraint("DistanceX", 0, 3, -1, 1, 19.2))
sketch10.addConstraint(Sketcher.Constraint("DistanceY", 0, 3, -1, 1, 3.1))
sketch10.setExpression("Constraints[6]", "Params.sketch10_diameter")
pocket7 = doc.addObject("PartDesign::Pocket", "Pocket006")
body.addObject(pocket7)
pocket7.Profile = sketch10
pocket7.setExpression("Length", "Params.pocket7_length")

# Sketch on XZ plane
sketch11 = doc.addObject("Sketcher::SketchObject", "Sketch010")
body.addObject(sketch11)
sketch11.AttachmentSupport = (doc.XZ_Plane, [""])
sketch11.MapMode = "FlatFace"
sketch11.AttachmentOffset = App.Placement(App.Vector(0, 0, 10.5), App.Rotation())
sketch11.addGeometry(Part.LineSegment(App.Vector(27, 82, 0), App.Vector(33, 82, 0)), False)
sketch11.addGeometry(Part.LineSegment(App.Vector(33, 82, 0), App.Vector(33, 76, 0)), False)
sketch11.addGeometry(Part.LineSegment(App.Vector(33, 76, 0), App.Vector(27, 76, 0)), False)
sketch11.addGeometry(Part.LineSegment(App.Vector(27, 76, 0), App.Vector(27, 82, 0)), False)
sketch11.addConstraint(Sketcher.Constraint("Coincident", 0, 2, 1, 1))
sketch11.addConstraint(Sketcher.Constraint("Coincident", 1, 2, 2, 1))
sketch11.addConstraint(Sketcher.Constraint("Coincident", 2, 2, 3, 1))
sketch11.addConstraint(Sketcher.Constraint("Coincident", 3, 2, 0, 1))
sketch11.addConstraint(Sketcher.Constraint("Horizontal", 0))
sketch11.addConstraint(Sketcher.Constraint("Vertical", 1))
sketch11.addConstraint(Sketcher.Constraint("Horizontal", 2))
sketch11.addConstraint(Sketcher.Constraint("Vertical", 3))
sketch11.addConstraint(Sketcher.Constraint("Equal", 2, 1))
sketch11.addConstraint(Sketcher.Constraint("DistanceX", 0, 1, 0, 2, 6.0))
sketch11.addConstraint(Sketcher.Constraint("DistanceY", -1, 1, 0, 2, 82.0))
sketch11.addConstraint(Sketcher.Constraint("DistanceX", -1, 1, 0, 2, 32.65))
sketch11.setExpression("Constraints[9]", "Params.sketch11_width")
pad2 = doc.addObject("PartDesign::Pad", "Pad001")
body.addObject(pad2)
pad2.Profile = sketch11
pad2.setExpression("Length", "Params.pad2_length")
pad2.Reversed = True

# Sketch on XY plane
sketch12 = doc.addObject("Sketcher::SketchObject", "Sketch011")
body.addObject(sketch12)
sketch12.AttachmentSupport = (doc.XY_Plane, [""])
sketch12.MapMode = "FlatFace"
sketch12.AttachmentOffset = App.Placement(App.Vector(0, 0, 85), App.Rotation())
sketch12.addGeometry(Part.Circle(App.Vector(29.6, 2.3, 0), App.Vector(0, 0, 1), 1.5), False)
sketch12.addGeometry(Part.Circle(App.Vector(29.6, 7.3, 0), App.Vector(0, 0, 1), 1.5), False)
sketch12.addConstraint(Sketcher.Constraint("Equal", 0, 1))
sketch12.addConstraint(Sketcher.Constraint("Vertical", 0, 3, 1, 3))
sketch12.addConstraint(Sketcher.Constraint("Diameter", 0, 3.0))
sketch12.addConstraint(Sketcher.Constraint("DistanceY", 0, 3, 1, 3, 5.0))
sketch12.addConstraint(Sketcher.Constraint("DistanceX", -1, 1, 0, 3, 29.65))
sketch12.addConstraint(Sketcher.Constraint("DistanceY", -1, 1, 0, 3, 2.31))
sketch12.setExpression("Constraints[2]", "Params.sketch12_diameter")
pocket8 = doc.addObject("PartDesign::Pocket", "Pocket007")
body.addObject(pocket8)
pocket8.Profile = sketch12
pocket8.setExpression("Length", "Params.pocket8_length")

# Sketch on XZ plane
sketch13 = doc.addObject("Sketcher::SketchObject", "Sketch012")
body.addObject(sketch13)
sketch13.AttachmentSupport = (doc.XZ_Plane, [""])
sketch13.MapMode = "FlatFace"
sketch13.AttachmentOffset = App.Placement(App.Vector(0, 0, -13.5), App.Rotation())
sketch13.addGeometry(Part.LineSegment(App.Vector(-24.7, 49, 0), App.Vector(-24.7, 48, 0)), False)
sketch13.addGeometry(Part.LineSegment(App.Vector(-24.7, 48, 0), App.Vector(-26.6, 48, 0)), False)
sketch13.addGeometry(Part.LineSegment(App.Vector(-26.6, 48, 0), App.Vector(-26.6, 49, 0)), False)
sketch13.addGeometry(Part.LineSegment(App.Vector(-26.6, 49, 0), App.Vector(-24.7, 49, 0)), False)
sketch13.addGeometry(Part.LineSegment(App.Vector(-1.9, 48, 0), App.Vector(-1.9, 49, 0)), False)
sketch13.addGeometry(Part.LineSegment(App.Vector(-1.9, 49, 0), App.Vector(0, 49, 0)), False)
sketch13.addGeometry(Part.LineSegment(App.Vector(0, 49, 0), App.Vector(0, 48, 0)), False)
sketch13.addGeometry(Part.LineSegment(App.Vector(0, 48, 0), App.Vector(-1.9, 48, 0)), False)
sketch13.addConstraint(Sketcher.Constraint("Coincident", 0, 2, 1, 1))
sketch13.addConstraint(Sketcher.Constraint("Coincident", 1, 2, 2, 1))
sketch13.addConstraint(Sketcher.Constraint("Coincident", 2, 2, 3, 1))
sketch13.addConstraint(Sketcher.Constraint("Coincident", 3, 2, 0, 1))
sketch13.addConstraint(Sketcher.Constraint("Coincident", 4, 2, 5, 1))
sketch13.addConstraint(Sketcher.Constraint("Coincident", 5, 2, 6, 1))
sketch13.addConstraint(Sketcher.Constraint("Coincident", 6, 2, 7, 1))
sketch13.addConstraint(Sketcher.Constraint("Coincident", 7, 2, 4, 1))
sketch13.addConstraint(Sketcher.Constraint("Vertical", 0))
sketch13.addConstraint(Sketcher.Constraint("Horizontal", 1))
sketch13.addConstraint(Sketcher.Constraint("Vertical", 2))
sketch13.addConstraint(Sketcher.Constraint("Horizontal", 3))
sketch13.addConstraint(Sketcher.Constraint("Vertical", 4))
sketch13.addConstraint(Sketcher.Constraint("Horizontal", 5))
sketch13.addConstraint(Sketcher.Constraint("Vertical", 6))
sketch13.addConstraint(Sketcher.Constraint("Horizontal", 7))
sketch13.addConstraint(Sketcher.Constraint("PointOnObject", 5, 2, -2))
sketch13.addConstraint(Sketcher.Constraint("Horizontal", 3, 2, 4, 2))
sketch13.addConstraint(Sketcher.Constraint("Horizontal", 1, 2, 6, 2))
sketch13.addConstraint(Sketcher.Constraint("Equal", 3, 5))
sketch13.addConstraint(Sketcher.Constraint("DistanceY", 0, 2, 0, 1, 1.0))
sketch13.addConstraint(Sketcher.Constraint("DistanceX", 1, 2, 1, 1, 1.9))
sketch13.addConstraint(Sketcher.Constraint("DistanceY", -1, 1, 0, 2, 48.0))
sketch13.addConstraint(Sketcher.Constraint("DistanceX", 0, 2, -1, 1, 24.7))
sketch13.setExpression("Constraints[20]", "Params.sketch13_height")
sketch13.setExpression("Constraints[21]", "Params.sketch13_width")
pocket9 = doc.addObject("PartDesign::Pocket", "Pocket008")
body.addObject(pocket9)
pocket9.Profile = sketch13
pocket9.setExpression("Length", "Params.pocket9_length")
pocket9.Reversed = True

doc.recompute()
